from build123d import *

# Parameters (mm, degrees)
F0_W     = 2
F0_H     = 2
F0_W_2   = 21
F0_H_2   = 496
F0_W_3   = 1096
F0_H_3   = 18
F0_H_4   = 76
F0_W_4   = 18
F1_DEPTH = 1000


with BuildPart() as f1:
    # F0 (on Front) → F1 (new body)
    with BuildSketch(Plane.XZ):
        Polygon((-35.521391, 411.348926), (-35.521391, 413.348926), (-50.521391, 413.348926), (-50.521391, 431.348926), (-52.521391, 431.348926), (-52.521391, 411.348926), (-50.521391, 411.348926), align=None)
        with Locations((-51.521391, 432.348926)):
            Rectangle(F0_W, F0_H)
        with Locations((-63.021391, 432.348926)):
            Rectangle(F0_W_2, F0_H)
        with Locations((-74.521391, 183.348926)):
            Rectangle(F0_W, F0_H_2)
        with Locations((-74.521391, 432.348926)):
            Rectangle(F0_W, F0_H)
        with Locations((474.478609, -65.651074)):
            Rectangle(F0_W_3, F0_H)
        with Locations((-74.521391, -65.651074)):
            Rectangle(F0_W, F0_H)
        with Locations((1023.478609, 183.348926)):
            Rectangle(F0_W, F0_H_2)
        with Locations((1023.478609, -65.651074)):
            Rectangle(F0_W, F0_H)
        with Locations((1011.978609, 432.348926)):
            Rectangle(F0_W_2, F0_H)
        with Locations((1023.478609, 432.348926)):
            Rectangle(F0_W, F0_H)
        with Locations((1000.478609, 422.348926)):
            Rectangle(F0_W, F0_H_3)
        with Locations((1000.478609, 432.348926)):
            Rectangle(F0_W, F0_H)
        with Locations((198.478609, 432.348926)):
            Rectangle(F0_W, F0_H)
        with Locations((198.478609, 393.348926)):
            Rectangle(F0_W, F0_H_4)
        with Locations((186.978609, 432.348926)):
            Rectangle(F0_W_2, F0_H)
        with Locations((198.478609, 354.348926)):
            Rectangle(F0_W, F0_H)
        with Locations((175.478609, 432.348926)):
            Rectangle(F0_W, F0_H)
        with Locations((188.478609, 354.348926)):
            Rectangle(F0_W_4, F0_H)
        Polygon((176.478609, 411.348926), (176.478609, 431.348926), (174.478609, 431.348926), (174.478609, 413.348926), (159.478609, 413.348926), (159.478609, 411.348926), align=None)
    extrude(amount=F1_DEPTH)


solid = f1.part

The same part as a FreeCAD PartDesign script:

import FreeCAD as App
import Part
import Sketcher

V = App.Vector
Q = App.Units.Quantity

doc = App.newDocument("Part")
body = doc.addObject("PartDesign::Body", "Body")
body.AllowCompound = True

sketch1 = doc.addObject("Sketcher::SketchObject", "Sketch")
body.addObject(sketch1)
sketch1.AttachmentSupport = (doc.XZ_Plane, [""])
sketch1.MapMode = "FlatFace"
sketch1.addGeometry(Part.LineSegment(V(-35.5, 411.3, 0), V(-35.5, 413.3, 0)), False)
sketch1.addGeometry(Part.LineSegment(V(-35.5, 413.3, 0), V(-50.5, 413.3, 0)), False)
sketch1.addGeometry(Part.LineSegment(V(-50.5, 413.3, 0), V(-50.5, 433.3, 0)), False)
sketch1.addGeometry(Part.LineSegment(V(-50.5, 433.3, 0), V(-75.5, 433.3, 0)), False)
sketch1.addGeometry(Part.LineSegment(V(-75.5, 433.3, 0), V(-75.5, -66.7, 0)), False)
sketch1.addGeometry(Part.LineSegment(V(-75.5, -66.7, 0), V(1024.5, -66.7, 0)), False)
sketch1.addGeometry(Part.LineSegment(V(1024.5, -66.7, 0), V(1024.5, 433.3, 0)), False)
sketch1.addGeometry(Part.LineSegment(V(1024.5, 433.3, 0), V(999.5, 433.3, 0)), False)
sketch1.addGeometry(Part.LineSegment(V(999.5, 433.3, 0), V(999.5, 413.3, 0)), False)
sketch1.addGeometry(Part.LineSegment(V(999.5, 413.3, 0), V(1001.5, 413.3, 0)), False)
sketch1.addGeometry(Part.LineSegment(V(1001.5, 413.3, 0), V(1001.5, 431.3, 0)), False)
sketch1.addGeometry(Part.LineSegment(V(1001.5, 431.3, 0), V(1022.5, 431.3, 0)), False)
sketch1.addGeometry(Part.LineSegment(V(1022.5, 431.3, 0), V(1022.5, -64.7, 0)), False)
sketch1.addGeometry(Part.LineSegment(V(1022.5, -64.7, 0), V(-73.5, -64.7, 0)), False)
sketch1.addGeometry(Part.LineSegment(V(-73.5, -64.7, 0), V(-73.5, 431.3, 0)), False)
sketch1.addGeometry(Part.LineSegment(V(-73.5, 431.3, 0), V(-52.5, 431.3, 0)), False)
sketch1.addGeometry(Part.LineSegment(V(-52.5, 431.3, 0), V(-52.5, 411.3, 0)), False)
sketch1.addGeometry(Part.LineSegment(V(-52.5, 411.3, 0), V(-35.5, 411.3, 0)), False)
sketch1.addGeometry(Part.LineSegment(V(197.5, 431.3, 0), V(197.5, 355.3, 0)), False)
sketch1.addGeometry(Part.LineSegment(V(197.5, 355.3, 0), V(179.5, 355.3, 0)), False)
sketch1.addGeometry(Part.LineSegment(V(179.5, 355.3, 0), V(179.5, 353.3, 0)), False)
sketch1.addGeometry(Part.LineSegment(V(179.5, 353.3, 0), V(199.5, 353.3, 0)), False)
sketch1.addGeometry(Part.LineSegment(V(199.5, 353.3, 0), V(199.5, 433.3, 0)), False)
sketch1.addGeometry(Part.LineSegment(V(199.5, 433.3, 0), V(174.5, 433.3, 0)), False)
sketch1.addGeometry(Part.LineSegment(V(174.5, 433.3, 0), V(174.5, 413.3, 0)), False)
sketch1.addGeometry(Part.LineSegment(V(174.5, 413.3, 0), V(159.5, 413.3, 0)), False)
sketch1.addGeometry(Part.LineSegment(V(159.5, 413.3, 0), V(159.5, 411.3, 0)), False)
sketch1.addGeometry(Part.LineSegment(V(159.5, 411.3, 0), V(176.5, 411.3, 0)), False)
sketch1.addGeometry(Part.LineSegment(V(176.5, 411.3, 0), V(176.5, 431.3, 0)), False)
sketch1.addGeometry(Part.LineSegment(V(176.5, 431.3, 0), V(197.5, 431.3, 0)), False)
sketch1.addConstraint(Sketcher.Constraint("Coincident", 0, 2, 1, 1))
sketch1.addConstraint(Sketcher.Constraint("Coincident", 1, 2, 2, 1))
sketch1.addConstraint(Sketcher.Constraint("Coincident", 2, 2, 3, 1))
sketch1.addConstraint(Sketcher.Constraint("Coincident", 3, 2, 4, 1))
sketch1.addConstraint(Sketcher.Constraint("Coincident", 4, 2, 5, 1))
sketch1.addConstraint(Sketcher.Constraint("Coincident", 5, 2, 6, 1))
sketch1.addConstraint(Sketcher.Constraint("Coincident", 6, 2, 7, 1))
sketch1.addConstraint(Sketcher.Constraint("Coincident", 7, 2, 8, 1))
sketch1.addConstraint(Sketcher.Constraint("Coincident", 8, 2, 9, 1))
sketch1.addConstraint(Sketcher.Constraint("Coincident", 9, 2, 10, 1))
sketch1.addConstraint(Sketcher.Constraint("Coincident", 10, 2, 11, 1))
sketch1.addConstraint(Sketcher.Constraint("Coincident", 11, 2, 12, 1))
sketch1.addConstraint(Sketcher.Constraint("Coincident", 12, 2, 13, 1))
sketch1.addConstraint(Sketcher.Constraint("Coincident", 13, 2, 14, 1))
sketch1.addConstraint(Sketcher.Constraint("Coincident", 14, 2, 15, 1))
sketch1.addConstraint(Sketcher.Constraint("Coincident", 15, 2, 16, 1))
sketch1.addConstraint(Sketcher.Constraint("Coincident", 16, 2, 17, 1))
sketch1.addConstraint(Sketcher.Constraint("Coincident", 17, 2, 0, 1))
sketch1.addConstraint(Sketcher.Constraint("Coincident", 18, 2, 19, 1))
sketch1.addConstraint(Sketcher.Constraint("Coincident", 19, 2, 20, 1))
sketch1.addConstraint(Sketcher.Constraint("Coincident", 20, 2, 21, 1))
sketch1.addConstraint(Sketcher.Constraint("Coincident", 21, 2, 22, 1))
sketch1.addConstraint(Sketcher.Constraint("Coincident", 22, 2, 23, 1))
sketch1.addConstraint(Sketcher.Constraint("Coincident", 23, 2, 24, 1))
sketch1.addConstraint(Sketcher.Constraint("Coincident", 24, 2, 25, 1))
sketch1.addConstraint(Sketcher.Constraint("Coincident", 25, 2, 26, 1))
sketch1.addConstraint(Sketcher.Constraint("Coincident", 26, 2, 27, 1))
sketch1.addConstraint(Sketcher.Constraint("Coincident", 27, 2, 28, 1))
sketch1.addConstraint(Sketcher.Constraint("Coincident", 28, 2, 29, 1))
sketch1.addConstraint(Sketcher.Constraint("Coincident", 29, 2, 18, 1))
sketch1.addConstraint(Sketcher.Constraint("Vertical", 0))
sketch1.addConstraint(Sketcher.Constraint("Horizontal", 1))
sketch1.addConstraint(Sketcher.Constraint("Vertical", 2))
sketch1.addConstraint(Sketcher.Constraint("Horizontal", 3))
sketch1.addConstraint(Sketcher.Constraint("Vertical", 4))
sketch1.addConstraint(Sketcher.Constraint("Horizontal", 5))
sketch1.addConstraint(Sketcher.Constraint("Vertical", 6))
sketch1.addConstraint(Sketcher.Constraint("Horizontal", 7))
sketch1.addConstraint(Sketcher.Constraint("Vertical", 8))
sketch1.addConstraint(Sketcher.Constraint("Horizontal", 9))
sketch1.addConstraint(Sketcher.Constraint("Vertical", 10))
sketch1.addConstraint(Sketcher.Constraint("Horizontal", 11))
sketch1.addConstraint(Sketcher.Constraint("Vertical", 12))
sketch1.addConstraint(Sketcher.Constraint("Horizontal", 13))
sketch1.addConstraint(Sketcher.Constraint("Vertical", 14))
sketch1.addConstraint(Sketcher.Constraint("Horizontal", 15))
sketch1.addConstraint(Sketcher.Constraint("Vertical", 16))
sketch1.addConstraint(Sketcher.Constraint("Horizontal", 17))
sketch1.addConstraint(Sketcher.Constraint("Vertical", 18))
sketch1.addConstraint(Sketcher.Constraint("Horizontal", 19))
sketch1.addConstraint(Sketcher.Constraint("Vertical", 20))
sketch1.addConstraint(Sketcher.Constraint("Horizontal", 21))
sketch1.addConstraint(Sketcher.Constraint("Vertical", 22))
sketch1.addConstraint(Sketcher.Constraint("Horizontal", 23))
sketch1.addConstraint(Sketcher.Constraint("Vertical", 24))
sketch1.addConstraint(Sketcher.Constraint("Horizontal", 25))
sketch1.addConstraint(Sketcher.Constraint("Vertical", 26))
sketch1.addConstraint(Sketcher.Constraint("Horizontal", 27))
sketch1.addConstraint(Sketcher.Constraint("Vertical", 28))
sketch1.addConstraint(Sketcher.Constraint("Horizontal", 29))
sketch1.addConstraint(Sketcher.Constraint("Horizontal", 3, 2, 6, 2))
sketch1.addConstraint(Sketcher.Constraint("Horizontal", 1, 2, 8, 2))
sketch1.addConstraint(Sketcher.Constraint("Horizontal", 11, 2, 14, 2))
sketch1.addConstraint(Sketcher.Constraint("Horizontal", 7, 2, 22, 2))
sketch1.addConstraint(Sketcher.Constraint("Horizontal", 9, 2, 24, 2))
sketch1.addConstraint(Sketcher.Constraint("Horizontal", 17, 2, 26, 2))
sketch1.addConstraint(Sketcher.Constraint("Horizontal", 15, 2, 28, 2))
sketch1.addConstraint(Sketcher.Constraint("Equal", 3, 7))
sketch1.addConstraint(Sketcher.Constraint("Equal", 11, 15))
sketch1.addConstraint(Sketcher.Constraint("Equal", 7, 23))
sketch1.addConstraint(Sketcher.Constraint("Equal", 1, 25))
sketch1.addConstraint(Sketcher.Constraint("Equal", 17, 27))
sketch1.addConstraint(Sketcher.Constraint("Equal", 15, 29))
sketch1.addConstraint(Sketcher.Constraint("Equal", 9, 0))
sketch1.addConstraint(Sketcher.Constraint("Equal", 21, 2))
sketch1.addConstraint(Sketcher.Constraint("Equal", 19, 10))
sketch1.addConstraint(Sketcher.Constraint("Equal", 8, 16))
sketch1.addConstraint(Sketcher.Constraint("Equal", 0, 20))
sketch1.addConstraint(Sketcher.Constraint("DistanceX", 1, 2, 1, 1, Q("15 mm")))
sketch1.addConstraint(Sketcher.Constraint("DistanceX", 3, 2, 3, 1, Q("25 mm")))
sketch1.addConstraint(Sketcher.Constraint("DistanceX", 5, 1, 5, 2, Q("1100 mm")))
sketch1.addConstraint(Sketcher.Constraint("DistanceX", 9, 1, 9, 2, Q("2 mm")))
sketch1.addConstraint(Sketcher.Constraint("DistanceX", 11, 1, 11, 2, Q("21 mm")))
sketch1.addConstraint(Sketcher.Constraint("DistanceX", 19, 2, 19, 1, Q("18 mm")))
sketch1.addConstraint(Sketcher.Constraint("DistanceY", 4, 2, 4, 1, Q("500 mm")))
sketch1.addConstraint(Sketcher.Constraint("DistanceY", 12, 2, 12, 1, Q("496 mm")))
sketch1.addConstraint(Sketcher.Constraint("DistanceY", 18, 2, 18, 1, Q("76 mm")))
sketch1.addConstraint(Sketcher.Constraint("DistanceX", 17, 2, 18, 2, Q("233 mm")))
sketch1.addConstraint(Sketcher.Constraint("DistanceX", 0, 2, -1, 1, Q("35.521391 mm")))
sketch1.addConstraint(Sketcher.Constraint("DistanceY", -1, 1, 0, 2, Q("413.348926 mm")))
pad1 = doc.addObject("PartDesign::Pad", "Pad")
body.addObject(pad1)
pad1.Profile = sketch1
pad1.Length = 1000

doc.recompute()
